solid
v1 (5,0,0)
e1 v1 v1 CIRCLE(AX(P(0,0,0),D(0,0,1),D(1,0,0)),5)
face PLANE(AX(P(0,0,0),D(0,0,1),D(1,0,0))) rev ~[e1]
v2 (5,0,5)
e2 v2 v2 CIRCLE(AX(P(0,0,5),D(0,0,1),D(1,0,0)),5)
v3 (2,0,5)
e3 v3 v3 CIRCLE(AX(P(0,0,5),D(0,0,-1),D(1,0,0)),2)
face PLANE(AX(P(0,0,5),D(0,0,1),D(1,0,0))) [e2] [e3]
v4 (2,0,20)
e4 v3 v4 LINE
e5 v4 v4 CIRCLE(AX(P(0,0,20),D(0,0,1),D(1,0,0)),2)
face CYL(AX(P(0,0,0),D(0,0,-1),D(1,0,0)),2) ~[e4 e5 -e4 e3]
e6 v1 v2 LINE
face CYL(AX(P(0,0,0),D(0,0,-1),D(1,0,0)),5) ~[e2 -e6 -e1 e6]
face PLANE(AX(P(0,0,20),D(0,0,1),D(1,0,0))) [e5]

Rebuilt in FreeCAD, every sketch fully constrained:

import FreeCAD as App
import Part
import Sketcher

doc = App.newDocument("Part")
params = doc.addObject("Spreadsheet::Sheet", "Params")
for row, (alias, value) in enumerate([
    ("sketch1_diameter", "4 mm"),
    ("pad1_length", "20 mm"),
    ("sketch2_diameter", "10 mm"),
    ("pad2_length", "5 mm"),
], start=1):
    params.set(f"A{row}", alias)
    params.set(f"B{row}", "=" + value)
    params.setAlias(f"B{row}", alias)

body = doc.addObject("PartDesign::Body", "Body")

# Sketch on XY plane
sketch1 = body.newObject("Sketcher::SketchObject", "Sketch")
sketch1.AttachmentSupport = (doc.getObject("XY_Plane"), [""])
sketch1.MapMode = "FlatFace"
sketch1.addGeometry(Part.Circle(App.Vector(0, 0, 0), App.Vector(0, 0, 1), 2), False)
sketch1.addConstraint([
    Sketcher.Constraint("Coincident", 0, 3, -1, 1),
    Sketcher.Constraint("Diameter", 0, 4.0),
])
sketch1.setExpression("Constraints[1]", "Params.sketch1_diameter")
pad1 = body.newObject("PartDesign::Pad", "Pad")
pad1.Profile = sketch1
pad1.setExpression("Length", "Params.pad1_length")
body2 = doc.addObject("PartDesign::Body", "Body001")

# Sketch on XY plane
sketch2 = body2.newObject("Sketcher::SketchObject", "Sketch001")
sketch2.AttachmentSupport = (doc.getObject("XY_Plane001"), [""])
sketch2.MapMode = "FlatFace"
sketch2.addGeometry(Part.Circle(App.Vector(0, 0, 0), App.Vector(0, 0, 1), 5), False)
sketch2.addConstraint([
    Sketcher.Constraint("Coincident", 0, 3, -1, 1),
    Sketcher.Constraint("Diameter", 0, 10.0),
])
sketch2.setExpression("Constraints[1]", "Params.sketch2_diameter")
pad2 = body2.newObject("PartDesign::Pad", "Pad001")
pad2.Profile = sketch2
pad2.setExpression("Length", "Params.pad2_length")
doc.recompute()

boolean = body2.newObject("PartDesign::Boolean", "Boolean")
boolean.Type = "Fuse"
boolean.addObjects([body])

doc.recompute()
